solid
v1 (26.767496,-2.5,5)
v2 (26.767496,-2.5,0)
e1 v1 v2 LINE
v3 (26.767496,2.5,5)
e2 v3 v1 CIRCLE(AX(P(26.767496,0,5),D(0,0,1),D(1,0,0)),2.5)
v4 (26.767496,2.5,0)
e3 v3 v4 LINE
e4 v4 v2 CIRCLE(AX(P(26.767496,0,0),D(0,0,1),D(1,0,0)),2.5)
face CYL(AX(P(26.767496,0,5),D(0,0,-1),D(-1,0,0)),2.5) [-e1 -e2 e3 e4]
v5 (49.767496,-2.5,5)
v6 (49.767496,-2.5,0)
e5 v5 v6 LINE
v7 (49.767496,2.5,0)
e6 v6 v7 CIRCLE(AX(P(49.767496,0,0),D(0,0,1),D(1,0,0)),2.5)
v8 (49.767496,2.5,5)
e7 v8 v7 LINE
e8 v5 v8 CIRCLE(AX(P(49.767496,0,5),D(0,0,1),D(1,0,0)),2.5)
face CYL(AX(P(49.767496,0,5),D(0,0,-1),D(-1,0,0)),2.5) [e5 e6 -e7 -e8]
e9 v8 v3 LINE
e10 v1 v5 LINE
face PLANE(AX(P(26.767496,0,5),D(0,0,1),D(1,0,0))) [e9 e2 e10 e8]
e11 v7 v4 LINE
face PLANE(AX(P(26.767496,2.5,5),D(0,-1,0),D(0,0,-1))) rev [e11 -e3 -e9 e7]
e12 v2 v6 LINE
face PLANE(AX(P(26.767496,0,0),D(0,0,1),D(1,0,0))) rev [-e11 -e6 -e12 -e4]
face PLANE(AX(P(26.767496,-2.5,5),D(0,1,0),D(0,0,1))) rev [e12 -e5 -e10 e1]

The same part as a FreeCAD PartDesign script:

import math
import FreeCAD as App
import Part
import Sketcher
from FreeCAD import Vector
Q = App.Units.Quantity

doc = App.newDocument("Part")
body = doc.addObject("PartDesign::Body", "Body")

# Sketch on XY plane
sketch1 = body.newObject("Sketcher::SketchObject", "Sketch")
sketch1.AttachmentSupport = (doc.getObject("XY_Plane"), [""])
sketch1.MapMode = "FlatFace"
sketch1.addGeometry(Part.LineSegment(Vector(49.8, 2.5, 0), Vector(26.8, 2.5, 0)), False)
sketch1.addGeometry(Part.ArcOfCircle(Part.Circle(Vector(26.8, 0, 0), Vector(0, 0, 1), 2.5), math.radians(90), math.radians(270)), False)
sketch1.addGeometry(Part.LineSegment(Vector(26.8, -2.5, 0), Vector(49.8, -2.5, 0)), False)
sketch1.addGeometry(Part.ArcOfCircle(Part.Circle(Vector(49.8, 0, 0), Vector(0, 0, 1), 2.5), math.radians(-90), math.radians(90)), False)
sketch1.addConstraint(Sketcher.Constraint("Tangent", 0, 2, 1, 1))
sketch1.addConstraint(Sketcher.Constraint("Tangent", 1, 2, 2, 1))
sketch1.addConstraint(Sketcher.Constraint("Tangent", 2, 2, 3, 1))
sketch1.addConstraint(Sketcher.Constraint("Tangent", 3, 2, 0, 1))
sketch1.addConstraint(Sketcher.Constraint("Horizontal", 0))
sketch1.addConstraint(Sketcher.Constraint("Horizontal", 2))
sketch1.addConstraint(Sketcher.Constraint("PointOnObject", 1, 3, -1))
sketch1.addConstraint(Sketcher.Constraint("Radius", 1, Q("2.5 mm")))
sketch1.addConstraint(Sketcher.Constraint("DistanceX", 0, 2, 0, 1, Q("23 mm")))
sketch1.addConstraint(Sketcher.Constraint("DistanceX", -1, 1, 1, 3, Q("26.767496 mm")))
pad1 = body.newObject("PartDesign::Pad", "Pad")
pad1.Profile = sketch1
pad1.Length = 5

doc.recompute()
